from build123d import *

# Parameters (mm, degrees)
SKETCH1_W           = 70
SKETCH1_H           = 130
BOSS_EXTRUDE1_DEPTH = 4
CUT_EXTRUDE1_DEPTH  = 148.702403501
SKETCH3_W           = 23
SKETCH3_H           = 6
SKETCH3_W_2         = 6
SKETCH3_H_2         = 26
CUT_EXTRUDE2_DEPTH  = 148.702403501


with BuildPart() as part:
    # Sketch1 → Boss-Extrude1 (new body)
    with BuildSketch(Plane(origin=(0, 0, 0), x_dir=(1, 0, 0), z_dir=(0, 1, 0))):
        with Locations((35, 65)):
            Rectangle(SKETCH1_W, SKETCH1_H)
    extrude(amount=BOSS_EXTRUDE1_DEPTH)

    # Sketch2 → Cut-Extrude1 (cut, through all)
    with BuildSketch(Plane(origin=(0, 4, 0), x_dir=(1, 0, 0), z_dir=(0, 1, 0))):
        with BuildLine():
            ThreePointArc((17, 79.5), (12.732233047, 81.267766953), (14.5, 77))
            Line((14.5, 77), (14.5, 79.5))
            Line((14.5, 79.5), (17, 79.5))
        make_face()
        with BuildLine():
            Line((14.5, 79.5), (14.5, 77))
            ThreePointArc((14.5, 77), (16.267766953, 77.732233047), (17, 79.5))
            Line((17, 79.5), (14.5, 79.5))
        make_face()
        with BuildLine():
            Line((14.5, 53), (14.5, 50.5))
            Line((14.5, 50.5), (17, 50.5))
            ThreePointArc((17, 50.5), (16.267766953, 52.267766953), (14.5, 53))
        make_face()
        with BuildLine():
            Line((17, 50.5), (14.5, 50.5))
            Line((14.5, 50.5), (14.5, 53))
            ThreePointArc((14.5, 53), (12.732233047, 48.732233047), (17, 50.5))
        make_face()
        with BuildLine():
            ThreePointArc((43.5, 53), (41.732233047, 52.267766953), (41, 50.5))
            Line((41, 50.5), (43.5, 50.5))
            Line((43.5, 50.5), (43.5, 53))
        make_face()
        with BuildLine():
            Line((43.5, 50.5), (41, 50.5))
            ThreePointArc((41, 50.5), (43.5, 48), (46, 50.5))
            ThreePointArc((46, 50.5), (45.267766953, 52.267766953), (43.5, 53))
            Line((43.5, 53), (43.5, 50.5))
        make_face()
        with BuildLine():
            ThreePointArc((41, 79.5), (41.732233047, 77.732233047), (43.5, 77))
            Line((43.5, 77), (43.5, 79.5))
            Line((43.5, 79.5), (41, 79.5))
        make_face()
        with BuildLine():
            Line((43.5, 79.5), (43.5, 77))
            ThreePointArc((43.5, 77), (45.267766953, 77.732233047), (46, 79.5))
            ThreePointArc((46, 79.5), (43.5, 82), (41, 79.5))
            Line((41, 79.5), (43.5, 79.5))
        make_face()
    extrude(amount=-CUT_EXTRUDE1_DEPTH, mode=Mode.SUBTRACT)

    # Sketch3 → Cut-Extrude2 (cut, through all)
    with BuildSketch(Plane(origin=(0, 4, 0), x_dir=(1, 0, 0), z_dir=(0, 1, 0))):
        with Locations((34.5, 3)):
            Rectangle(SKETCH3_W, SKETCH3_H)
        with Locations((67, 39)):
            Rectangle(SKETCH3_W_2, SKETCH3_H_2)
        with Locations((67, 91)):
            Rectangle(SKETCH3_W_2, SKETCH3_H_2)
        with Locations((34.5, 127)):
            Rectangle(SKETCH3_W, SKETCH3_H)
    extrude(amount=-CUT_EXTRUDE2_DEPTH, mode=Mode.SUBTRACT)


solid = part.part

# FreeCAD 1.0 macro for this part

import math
import FreeCAD as App
import Part
import Sketcher

doc = App.newDocument("Part")
body = doc.addObject("PartDesign::Body", "Body")

# Sketch on XZ plane
sketch1 = body.newObject("Sketcher::SketchObject", "Sketch")
sketch1.AttachmentSupport = (doc.getObject("XZ_Plane"), [""])
sketch1.MapMode = "FlatFace"
sketch1.addGeometry([
    Part.LineSegment(App.Vector(0, -130, 0), App.Vector(0, 0, 0)),
    Part.LineSegment(App.Vector(0, 0, 0), App.Vector(70, 0, 0)),
    Part.LineSegment(App.Vector(70, 0, 0), App.Vector(70, -130, 0)),
    Part.LineSegment(App.Vector(70, -130, 0), App.Vector(0, -130, 0)),
], False)
sketch1.addConstraint([
    Sketcher.Constraint("Coincident", 0, 2, 1, 1),
    Sketcher.Constraint("Coincident", 1, 2, 2, 1),
    Sketcher.Constraint("Coincident", 2, 2, 3, 1),
    Sketcher.Constraint("Coincident", 3, 2, 0, 1),
    Sketcher.Constraint("Vertical", 0),
    Sketcher.Constraint("Horizontal", 1),
    Sketcher.Constraint("Vertical", 2),
    Sketcher.Constraint("Horizontal", 3),
    Sketcher.Constraint("Coincident", 0, 2, -1, 1),
    Sketcher.Constraint("DistanceX", 1, 1, 1, 2, 70.0),
    Sketcher.Constraint("DistanceY", 0, 1, 0, 2, 130.0),
])
pad1 = body.newObject("PartDesign::Pad", "Pad")
pad1.Profile = sketch1
pad1.Length = 4
pad1.Reversed = True

# Sketch on XZ plane
sketch2 = body.newObject("Sketcher::SketchObject", "Sketch001")
sketch2.AttachmentSupport = (doc.getObject("XZ_Plane"), [""])
sketch2.MapMode = "FlatFace"
sketch2.AttachmentOffset = App.Placement(App.Vector(0, 0, -4), App.Rotation())
sketch2.addGeometry([
    Part.ArcOfCircle(Part.Circle(App.Vector(14.5, -79.5, 0), App.Vector(0, 0, 1), 2.5), math.radians(90), math.radians(360)),  # 0
    Part.ArcOfCircle(Part.Circle(App.Vector(14.5, -79.5, 0), App.Vector(0, 0, 1), 2.5), math.radians(0), math.radians(90)),  # 1
    Part.ArcOfCircle(Part.Circle(App.Vector(14.5, -50.5, 0), App.Vector(0, 0, 1), 2.5), math.radians(-90), math.radians(0)),  # 2
    Part.ArcOfCircle(Part.Circle(App.Vector(14.5, -50.5, 0), App.Vector(0, 0, 1), 2.5), math.radians(0), math.radians(270)),  # 3
    Part.ArcOfCircle(Part.Circle(App.Vector(43.5, -50.5, 0), App.Vector(0, 0, 1), 2.5), math.radians(180), math.radians(270)),  # 4
    Part.ArcOfCircle(Part.Circle(App.Vector(43.5, -50.5, 0), App.Vector(0, 0, 1), 2.5), math.radians(0), math.radians(180)),  # 5
    Part.ArcOfCircle(Part.Circle(App.Vector(43.5, -50.5, 0), App.Vector(0, 0, 1), 2.5), math.radians(-90), math.radians(0)),  # 6
    Part.ArcOfCircle(Part.Circle(App.Vector(43.5, -79.5, 0), App.Vector(0, 0, 1), 2.5), math.radians(90), math.radians(180)),  # 7
    Part.ArcOfCircle(Part.Circle(App.Vector(43.5, -79.5, 0), App.Vector(0, 0, 1), 2.5), math.radians(0), math.radians(90)),  # 8
    Part.ArcOfCircle(Part.Circle(App.Vector(43.5, -79.5, 0), App.Vector(0, 0, 1), 2.5), math.radians(180), math.radians(360)),  # 9
], False)
sketch2.addConstraint([
    Sketcher.Constraint("Tangent", 0, 1, 1, 2),
    Sketcher.Constraint("Coincident", 1, 1, 0, 2),
    Sketcher.Constraint("Tangent", 2, 1, 3, 2),
    Sketcher.Constraint("Coincident", 3, 1, 2, 2),
    Sketcher.Constraint("Tangent", 4, 1, 5, 2),
    Sketcher.Constraint("Tangent", 5, 1, 6, 2),
    Sketcher.Constraint("Tangent", 6, 1, 4, 2),
    Sketcher.Constraint("Tangent", 7, 1, 8, 2),
    Sketcher.Constraint("Tangent", 8, 1, 9, 2),
    Sketcher.Constraint("Tangent", 9, 1, 7, 2),
    Sketcher.Constraint("Equal", 1, 2),
    Sketcher.Constraint("Equal", 3, 4),
    Sketcher.Constraint("Equal", 6, 7),
    Sketcher.Constraint("Horizontal", 3, 3, 4, 3),
    Sketcher.Constraint("Horizontal", 1, 3, 7, 3),
    Sketcher.Constraint("Horizontal", 9, 3, 1, 1),
    Sketcher.Constraint("Horizontal", 6, 3, 3, 1),
    Sketcher.Constraint("Horizontal", 3, 1, 4, 1),
    Sketcher.Constraint("Horizontal", 4, 1, 5, 1),
    Sketcher.Constraint("Horizontal", 1, 1, 8, 1),
    Sketcher.Constraint("Horizontal", 8, 1, 9, 1),
    Sketcher.Constraint("Vertical", 1, 3, 2, 3),
    Sketcher.Constraint("Vertical", 6, 3, 7, 3),
    Sketcher.Constraint("Vertical", 3, 3, 0, 1),
    Sketcher.Constraint("Vertical", 0, 1, 2, 1),
    Sketcher.Constraint("Vertical", 9, 3, 6, 1),
    Sketcher.Constraint("Vertical", 6, 1, 7, 1),
    Sketcher.Constraint("Radius", 0, 2.5),
    Sketcher.Constraint("DistanceY", 0, 1, -1, 1, 77.0),
    Sketcher.Constraint("DistanceX", -1, 1, 1, 1, 17.0),
    Sketcher.Constraint("DistanceY", 2, 1, -1, 1, 53.0),
    Sketcher.Constraint("DistanceX", -1, 1, 4, 1, 41.0),
])
pocket1 = body.newObject("PartDesign::Pocket", "Pocket")
pocket1.Profile = sketch2
pocket1.Type = "ThroughAll"
pocket1.Reversed = True

# Sketch on XZ plane
sketch3 = body.newObject("Sketcher::SketchObject", "Sketch002")
sketch3.AttachmentSupport = (doc.getObject("XZ_Plane"), [""])
sketch3.MapMode = "FlatFace"
sketch3.AttachmentOffset = App.Placement(App.Vector(0, 0, -4), App.Rotation())
sketch3.addGeometry([
    Part.LineSegment(App.Vector(23, -6, 0), App.Vector(23, 0, 0)),  # 0
    Part.LineSegment(App.Vector(23, 0, 0), App.Vector(46, 0, 0)),  # 1
    Part.LineSegment(App.Vector(46, 0, 0), App.Vector(46, -6, 0)),  # 2
    Part.LineSegment(App.Vector(46, -6, 0), App.Vector(23, -6, 0)),  # 3
    Part.LineSegment(App.Vector(64, -52, 0), App.Vector(64, -26, 0)),  # 4
    Part.LineSegment(App.Vector(64, -26, 0), App.Vector(70, -26, 0)),  # 5
    Part.LineSegment(App.Vector(70, -26, 0), App.Vector(70, -52, 0)),  # 6
    Part.LineSegment(App.Vector(70, -52, 0), App.Vector(64, -52, 0)),  # 7
    Part.LineSegment(App.Vector(64, -104, 0), App.Vector(64, -78, 0)),  # 8
    Part.LineSegment(App.Vector(64, -78, 0), App.Vector(70, -78, 0)),  # 9
    Part.LineSegment(App.Vector(70, -78, 0), App.Vector(70, -104, 0)),  # 10
    Part.LineSegment(App.Vector(70, -104, 0), App.Vector(64, -104, 0)),  # 11
    Part.LineSegment(App.Vector(23, -130, 0), App.Vector(23, -124, 0)),  # 12
    Part.LineSegment(App.Vector(23, -124, 0), App.Vector(46, -124, 0)),  # 13
    Part.LineSegment(App.Vector(46, -124, 0), App.Vector(46, -130, 0)),  # 14
    Part.LineSegment(App.Vector(46, -130, 0), App.Vector(23, -130, 0)),  # 15
], False)
sketch3.addConstraint([
    Sketcher.Constraint("Coincident", 0, 2, 1, 1),
    Sketcher.Constraint("Coincident", 1, 2, 2, 1),
    Sketcher.Constraint("Coincident", 2, 2, 3, 1),
    Sketcher.Constraint("Coincident", 3, 2, 0, 1),
    Sketcher.Constraint("Coincident", 4, 2, 5, 1),
    Sketcher.Constraint("Coincident", 5, 2, 6, 1),
    Sketcher.Constraint("Coincident", 6, 2, 7, 1),
    Sketcher.Constraint("Coincident", 7, 2, 4, 1),
    Sketcher.Constraint("Coincident", 8, 2, 9, 1),
    Sketcher.Constraint("Coincident", 9, 2, 10, 1),
    Sketcher.Constraint("Coincident", 10, 2, 11, 1),
    Sketcher.Constraint("Coincident", 11, 2, 8, 1),
    Sketcher.Constraint("Coincident", 12, 2, 13, 1),
    Sketcher.Constraint("Coincident", 13, 2, 14, 1),
    Sketcher.Constraint("Coincident", 14, 2, 15, 1),
    Sketcher.Constraint("Coincident", 15, 2, 12, 1),
    Sketcher.Constraint("Vertical", 0),
    Sketcher.Constraint("Horizontal", 1),
    Sketcher.Constraint("Vertical", 2),
    Sketcher.Constraint("Horizontal", 3),
    Sketcher.Constraint("Vertical", 4),
    Sketcher.Constraint("Horizontal", 5),
    Sketcher.Constraint("Vertical", 6),
    Sketcher.Constraint("Horizontal", 7),
    Sketcher.Constraint("Vertical", 8),
    Sketcher.Constraint("Horizontal", 9),
    Sketcher.Constraint("Vertical", 10),
    Sketcher.Constraint("Horizontal", 11),
    Sketcher.Constraint("Vertical", 12),
    Sketcher.Constraint("Horizontal", 13),
    Sketcher.Constraint("Vertical", 14),
    Sketcher.Constraint("Horizontal", 15),
    Sketcher.Constraint("PointOnObject", 0, 2, -1),
    Sketcher.Constraint("Vertical", 7, 2, 8, 2),
    Sketcher.Constraint("Vertical", 6, 2, 9, 2),
    Sketcher.Constraint("Vertical", 3, 2, 12, 2),
    Sketcher.Constraint("Vertical", 2, 2, 13, 2),
    Sketcher.Constraint("Equal", 11, 0),
    Sketcher.Constraint("Equal", 6, 8),
    Sketcher.Constraint("Equal", 2, 12),
    Sketcher.Constraint("DistanceX", 1, 1, 1, 2, 23.0),
    Sketcher.Constraint("DistanceX", 5, 1, 5, 2, 6.0),
    Sketcher.Constraint("DistanceY", 4, 1, 4, 2, 26.0),
    Sketcher.Constraint("DistanceX", -1, 1, 0, 2, 23.0),
    Sketcher.Constraint("DistanceX", -1, 1, 4, 2, 64.0),
    Sketcher.Constraint("DistanceY", 4, 2, -1, 1, 26.0),
    Sketcher.Constraint("DistanceY", 8, 2, -1, 1, 78.0),
    Sketcher.Constraint("DistanceY", 12, 2, -1, 1, 124.0),
])
pocket2 = body.newObject("PartDesign::Pocket", "Pocket001")
pocket2.Profile = sketch3
pocket2.Type = "ThroughAll"
pocket2.Reversed = True

doc.recompute()
